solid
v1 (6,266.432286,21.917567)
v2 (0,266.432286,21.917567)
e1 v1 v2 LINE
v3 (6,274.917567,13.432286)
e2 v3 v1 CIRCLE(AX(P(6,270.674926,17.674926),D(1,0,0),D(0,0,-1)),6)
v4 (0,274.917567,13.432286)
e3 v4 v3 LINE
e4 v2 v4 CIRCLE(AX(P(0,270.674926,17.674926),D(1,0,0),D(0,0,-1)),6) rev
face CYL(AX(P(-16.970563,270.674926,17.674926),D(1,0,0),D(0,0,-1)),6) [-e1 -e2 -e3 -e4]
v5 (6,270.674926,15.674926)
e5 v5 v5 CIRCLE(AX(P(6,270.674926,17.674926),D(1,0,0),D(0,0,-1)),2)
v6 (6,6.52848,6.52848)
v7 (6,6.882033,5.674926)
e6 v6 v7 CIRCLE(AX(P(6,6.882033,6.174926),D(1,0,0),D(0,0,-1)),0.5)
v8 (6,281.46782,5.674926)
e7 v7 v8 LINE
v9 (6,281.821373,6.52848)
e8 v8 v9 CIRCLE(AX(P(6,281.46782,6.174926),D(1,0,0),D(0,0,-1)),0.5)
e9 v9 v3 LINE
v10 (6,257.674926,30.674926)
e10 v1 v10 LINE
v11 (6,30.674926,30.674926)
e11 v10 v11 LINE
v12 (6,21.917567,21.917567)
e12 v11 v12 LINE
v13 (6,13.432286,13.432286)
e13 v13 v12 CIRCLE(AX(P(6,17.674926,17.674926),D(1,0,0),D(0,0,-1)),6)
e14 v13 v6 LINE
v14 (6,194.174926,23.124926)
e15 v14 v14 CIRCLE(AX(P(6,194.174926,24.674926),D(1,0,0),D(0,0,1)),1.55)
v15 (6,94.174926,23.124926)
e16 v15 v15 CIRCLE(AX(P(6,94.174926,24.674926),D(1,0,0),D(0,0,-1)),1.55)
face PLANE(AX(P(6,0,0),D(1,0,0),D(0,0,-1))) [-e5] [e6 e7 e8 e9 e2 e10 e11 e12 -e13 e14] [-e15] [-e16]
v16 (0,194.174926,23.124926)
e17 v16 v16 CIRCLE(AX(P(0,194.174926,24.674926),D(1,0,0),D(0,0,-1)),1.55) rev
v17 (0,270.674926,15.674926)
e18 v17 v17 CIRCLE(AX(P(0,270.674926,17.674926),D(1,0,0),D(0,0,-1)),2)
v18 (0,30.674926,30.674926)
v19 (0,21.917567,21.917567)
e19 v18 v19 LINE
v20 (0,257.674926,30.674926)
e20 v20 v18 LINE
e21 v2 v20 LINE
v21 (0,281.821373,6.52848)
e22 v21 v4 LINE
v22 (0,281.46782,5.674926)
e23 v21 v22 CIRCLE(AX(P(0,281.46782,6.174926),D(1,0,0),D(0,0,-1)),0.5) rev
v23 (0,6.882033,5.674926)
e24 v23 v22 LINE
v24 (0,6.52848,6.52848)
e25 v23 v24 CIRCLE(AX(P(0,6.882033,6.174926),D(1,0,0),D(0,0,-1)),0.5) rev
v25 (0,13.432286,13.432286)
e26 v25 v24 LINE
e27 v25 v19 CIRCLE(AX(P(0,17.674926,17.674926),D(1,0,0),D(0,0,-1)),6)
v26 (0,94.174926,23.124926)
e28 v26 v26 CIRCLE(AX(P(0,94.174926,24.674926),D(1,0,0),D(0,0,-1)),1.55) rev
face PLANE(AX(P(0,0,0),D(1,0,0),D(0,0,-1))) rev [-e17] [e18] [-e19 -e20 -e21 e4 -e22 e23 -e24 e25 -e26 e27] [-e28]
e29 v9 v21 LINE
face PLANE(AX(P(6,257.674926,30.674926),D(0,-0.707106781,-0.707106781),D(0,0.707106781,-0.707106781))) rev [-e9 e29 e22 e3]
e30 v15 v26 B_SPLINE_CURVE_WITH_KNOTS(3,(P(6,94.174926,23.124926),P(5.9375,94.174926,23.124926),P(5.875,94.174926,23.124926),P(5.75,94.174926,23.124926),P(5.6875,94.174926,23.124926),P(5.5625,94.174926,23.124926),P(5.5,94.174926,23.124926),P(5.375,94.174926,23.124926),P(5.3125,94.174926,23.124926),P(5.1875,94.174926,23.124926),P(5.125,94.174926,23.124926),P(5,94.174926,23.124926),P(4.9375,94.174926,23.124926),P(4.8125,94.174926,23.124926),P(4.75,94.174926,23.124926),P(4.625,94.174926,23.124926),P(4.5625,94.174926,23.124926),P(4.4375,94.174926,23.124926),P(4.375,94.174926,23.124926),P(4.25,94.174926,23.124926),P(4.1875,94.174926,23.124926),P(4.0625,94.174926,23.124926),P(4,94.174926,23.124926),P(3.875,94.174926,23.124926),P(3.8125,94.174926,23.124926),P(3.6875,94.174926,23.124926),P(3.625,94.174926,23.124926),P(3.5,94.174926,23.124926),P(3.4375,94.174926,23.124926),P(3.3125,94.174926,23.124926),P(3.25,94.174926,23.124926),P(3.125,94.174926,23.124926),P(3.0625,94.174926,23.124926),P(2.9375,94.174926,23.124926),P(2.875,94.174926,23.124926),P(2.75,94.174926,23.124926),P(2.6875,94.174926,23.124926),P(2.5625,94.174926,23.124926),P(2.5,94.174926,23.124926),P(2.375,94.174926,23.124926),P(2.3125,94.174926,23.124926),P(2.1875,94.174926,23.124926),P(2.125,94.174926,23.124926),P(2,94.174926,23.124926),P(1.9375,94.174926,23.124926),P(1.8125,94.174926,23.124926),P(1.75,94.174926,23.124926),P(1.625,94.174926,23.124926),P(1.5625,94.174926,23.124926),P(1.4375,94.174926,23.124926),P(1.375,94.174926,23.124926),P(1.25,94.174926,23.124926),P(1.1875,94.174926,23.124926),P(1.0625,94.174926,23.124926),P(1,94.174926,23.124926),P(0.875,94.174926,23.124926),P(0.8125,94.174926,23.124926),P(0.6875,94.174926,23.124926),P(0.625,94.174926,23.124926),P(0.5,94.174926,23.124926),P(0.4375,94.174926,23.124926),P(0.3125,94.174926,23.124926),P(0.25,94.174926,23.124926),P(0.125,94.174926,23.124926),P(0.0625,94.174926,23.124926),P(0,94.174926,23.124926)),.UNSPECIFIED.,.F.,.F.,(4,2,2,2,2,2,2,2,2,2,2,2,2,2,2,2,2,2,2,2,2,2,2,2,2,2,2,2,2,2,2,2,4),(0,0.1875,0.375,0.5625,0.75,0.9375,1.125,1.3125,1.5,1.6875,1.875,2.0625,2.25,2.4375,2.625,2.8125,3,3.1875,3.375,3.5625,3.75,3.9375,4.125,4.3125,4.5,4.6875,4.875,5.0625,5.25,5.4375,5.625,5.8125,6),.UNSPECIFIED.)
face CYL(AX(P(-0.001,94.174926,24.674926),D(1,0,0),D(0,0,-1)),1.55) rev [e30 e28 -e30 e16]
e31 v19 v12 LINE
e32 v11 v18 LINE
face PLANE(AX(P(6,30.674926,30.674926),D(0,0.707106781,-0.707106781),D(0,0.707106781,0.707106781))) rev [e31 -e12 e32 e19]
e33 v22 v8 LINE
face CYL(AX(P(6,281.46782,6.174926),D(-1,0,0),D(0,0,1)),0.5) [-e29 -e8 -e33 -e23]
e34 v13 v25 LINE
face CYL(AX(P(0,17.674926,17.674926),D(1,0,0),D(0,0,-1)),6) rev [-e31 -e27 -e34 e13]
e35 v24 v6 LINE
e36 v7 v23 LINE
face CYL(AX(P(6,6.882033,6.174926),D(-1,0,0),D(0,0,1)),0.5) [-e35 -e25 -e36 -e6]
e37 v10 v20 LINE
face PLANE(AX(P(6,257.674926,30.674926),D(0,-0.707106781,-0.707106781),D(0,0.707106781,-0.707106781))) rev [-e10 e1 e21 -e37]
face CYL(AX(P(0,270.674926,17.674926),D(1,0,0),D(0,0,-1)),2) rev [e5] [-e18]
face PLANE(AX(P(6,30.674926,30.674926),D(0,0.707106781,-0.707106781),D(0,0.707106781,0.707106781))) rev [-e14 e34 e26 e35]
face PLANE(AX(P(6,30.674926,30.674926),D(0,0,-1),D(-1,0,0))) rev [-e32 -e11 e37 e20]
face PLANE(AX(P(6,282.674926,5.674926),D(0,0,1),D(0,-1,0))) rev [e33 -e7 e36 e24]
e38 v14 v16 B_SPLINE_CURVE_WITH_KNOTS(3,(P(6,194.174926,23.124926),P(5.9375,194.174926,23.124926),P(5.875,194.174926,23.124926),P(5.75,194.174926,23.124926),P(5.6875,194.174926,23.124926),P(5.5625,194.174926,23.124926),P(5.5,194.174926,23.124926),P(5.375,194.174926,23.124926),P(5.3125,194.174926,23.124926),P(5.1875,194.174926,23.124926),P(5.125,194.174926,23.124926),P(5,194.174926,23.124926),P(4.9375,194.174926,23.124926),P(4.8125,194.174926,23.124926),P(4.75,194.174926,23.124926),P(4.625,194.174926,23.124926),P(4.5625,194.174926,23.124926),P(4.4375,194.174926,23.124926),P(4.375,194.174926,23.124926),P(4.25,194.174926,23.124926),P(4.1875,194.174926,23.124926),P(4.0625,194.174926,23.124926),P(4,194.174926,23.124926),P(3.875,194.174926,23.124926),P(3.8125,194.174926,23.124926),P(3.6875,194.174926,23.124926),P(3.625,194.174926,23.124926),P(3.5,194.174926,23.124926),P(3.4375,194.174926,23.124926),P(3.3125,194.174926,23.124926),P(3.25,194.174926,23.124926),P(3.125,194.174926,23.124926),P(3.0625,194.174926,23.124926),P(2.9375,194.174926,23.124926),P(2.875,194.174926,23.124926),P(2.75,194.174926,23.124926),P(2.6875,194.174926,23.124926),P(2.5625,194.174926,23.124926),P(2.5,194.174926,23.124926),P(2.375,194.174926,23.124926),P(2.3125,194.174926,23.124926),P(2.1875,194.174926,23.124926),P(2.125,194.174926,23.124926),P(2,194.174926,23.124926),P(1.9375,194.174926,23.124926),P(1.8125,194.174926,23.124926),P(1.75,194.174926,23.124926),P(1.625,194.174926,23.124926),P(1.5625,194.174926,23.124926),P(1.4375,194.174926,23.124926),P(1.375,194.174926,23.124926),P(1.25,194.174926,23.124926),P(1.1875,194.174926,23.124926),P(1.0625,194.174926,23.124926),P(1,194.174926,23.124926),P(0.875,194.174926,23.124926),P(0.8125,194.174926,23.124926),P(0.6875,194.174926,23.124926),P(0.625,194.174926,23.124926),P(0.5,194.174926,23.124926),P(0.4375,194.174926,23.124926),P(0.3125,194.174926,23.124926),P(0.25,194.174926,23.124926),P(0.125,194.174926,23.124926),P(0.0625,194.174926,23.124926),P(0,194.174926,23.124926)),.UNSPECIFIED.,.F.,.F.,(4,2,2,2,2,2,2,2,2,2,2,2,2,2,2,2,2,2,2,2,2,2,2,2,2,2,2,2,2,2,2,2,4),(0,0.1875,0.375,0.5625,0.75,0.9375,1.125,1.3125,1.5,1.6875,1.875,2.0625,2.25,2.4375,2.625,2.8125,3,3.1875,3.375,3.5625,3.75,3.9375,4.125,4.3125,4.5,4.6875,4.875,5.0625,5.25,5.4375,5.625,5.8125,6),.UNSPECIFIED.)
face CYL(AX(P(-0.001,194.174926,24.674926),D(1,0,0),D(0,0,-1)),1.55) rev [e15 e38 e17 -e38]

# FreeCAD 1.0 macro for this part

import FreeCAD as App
import Part
import Sketcher

V = App.Vector


def edges_at(feature, points):
    """Names of the edges that pass closest to the given points."""
    edges = feature.Shape.Edges
    near = lambda p: min(range(len(edges)), key=lambda i: edges[i].distToShape(Part.Vertex(*p))[0])
    return sorted({f"Edge{near(p) + 1}" for p in points})

doc = App.newDocument("Part")
body = doc.addObject("PartDesign::Body", "Body")

# Sketch on YZ plane
sketch1 = body.newObject("Sketcher::SketchObject", "Sketch")
sketch1.AttachmentSupport = (doc.getObject("YZ_Plane"), [""])
sketch1.MapMode = "FlatFace"
sketch1.addGeometry(Part.LineSegment(V(258, 31, 0), V(31, 31, 0)), False)
sketch1.addGeometry(Part.LineSegment(V(31, 31, 0), V(6, 6, 0)), False)
sketch1.addGeometry(Part.LineSegment(V(6, 6, 0), V(283, 6, 0)), False)
sketch1.addGeometry(Part.LineSegment(V(283, 6, 0), V(258, 31, 0)), False)
sketch1.addConstraint(Sketcher.Constraint("Coincident", 0, 2, 1, 1))
sketch1.addConstraint(Sketcher.Constraint("Coincident", 1, 2, 2, 1))
sketch1.addConstraint(Sketcher.Constraint("Coincident", 2, 2, 3, 1))
sketch1.addConstraint(Sketcher.Constraint("Coincident", 3, 2, 0, 1))
sketch1.addConstraint(Sketcher.Constraint("Horizontal", 0))
sketch1.addConstraint(Sketcher.Constraint("Horizontal", 2))
sketch1.addConstraint(Sketcher.Constraint("Perpendicular", 1, 3))
sketch1.addConstraint(Sketcher.Constraint("Equal", 1, 3))
sketch1.addConstraint(Sketcher.Constraint("DistanceX", 0, 2, 0, 1, 227.0))
sketch1.addConstraint(Sketcher.Constraint("DistanceX", 2, 1, 2, 2, 277.0))
sketch1.addConstraint(Sketcher.Constraint("DistanceX", -1, 1, 0, 2, 30.674926))
sketch1.addConstraint(Sketcher.Constraint("DistanceY", -1, 1, 0, 2, 30.674926))
pad1 = body.newObject("PartDesign::Pad", "Pad")
pad1.Profile = sketch1
pad1.Length = 6
doc.recompute()

fillet = body.newObject("PartDesign::Fillet", "Fillet")
fillet.Base = (pad1, edges_at(pad1, [(3, 282.675, 5.675), (3, 5.675, 5.675)]))
fillet.Radius = 0.5

# Sketch on YZ plane
sketch2 = body.newObject("Sketcher::SketchObject", "Sketch001")
sketch2.AttachmentSupport = (doc.getObject("YZ_Plane"), [""])
sketch2.MapMode = "FlatFace"
sketch2.AttachmentOffset = App.Placement(V(0, 0, 6), App.Rotation())
sketch2.addGeometry(Part.Circle(V(271, 18, 0), V(0, 0, 1), 6), False)
sketch2.addConstraint(Sketcher.Constraint("Diameter", 0, 12.0))
sketch2.addConstraint(Sketcher.Constraint("DistanceX", -1, 1, 0, 3, 270.674926))
sketch2.addConstraint(Sketcher.Constraint("DistanceY", -1, 1, 0, 3, 17.674926))
pad2 = body.newObject("PartDesign::Pad", "Pad001")
pad2.Profile = sketch2
pad2.Length = 6
pad2.Reversed = True

# Sketch on YZ plane
sketch3 = body.newObject("Sketcher::SketchObject", "Sketch002")
sketch3.AttachmentSupport = (doc.getObject("YZ_Plane"), [""])
sketch3.MapMode = "FlatFace"
sketch3.AttachmentOffset = App.Placement(V(0, 0, 6), App.Rotation())
sketch3.addGeometry(Part.Circle(V(270.7, 17.7, 0), V(0, 0, 1), 2), False)
sketch3.addGeometry(Part.Circle(V(17.7, 17.7, 0), V(0, 0, 1), 6), False)
sketch3.addConstraint(Sketcher.Constraint("Horizontal", 0, 3, 1, 3))
sketch3.addConstraint(Sketcher.Constraint("Diameter", 0, 4.0))
sketch3.addConstraint(Sketcher.Constraint("Diameter", 1, 12.0))
sketch3.addConstraint(Sketcher.Constraint("DistanceX", 1, 3, 0, 3, 253.0))
sketch3.addConstraint(Sketcher.Constraint("DistanceX", -1, 1, 0, 3, 270.674926))
sketch3.addConstraint(Sketcher.Constraint("DistanceY", -1, 1, 0, 3, 17.674926))
pocket1 = body.newObject("PartDesign::Pocket", "Pocket")
pocket1.Profile = sketch3
pocket1.Type = "ThroughAll"

# Sketch on YZ plane
sketch4 = body.newObject("Sketcher::SketchObject", "Sketch003")
sketch4.AttachmentSupport = (doc.getObject("YZ_Plane"), [""])
sketch4.MapMode = "FlatFace"
sketch4.AttachmentOffset = App.Placement(V(0, 0, 6), App.Rotation())
sketch4.addGeometry(Part.Circle(V(94.2, 24.7, 0), V(0, 0, 1), 1.6), False)
sketch4.addConstraint(Sketcher.Constraint("Diameter", 0, 3.1))
sketch4.addConstraint(Sketcher.Constraint("DistanceX", -1, 1, 0, 3, 94.174926))
sketch4.addConstraint(Sketcher.Constraint("DistanceY", -1, 1, 0, 3, 24.674926))
pocket2 = body.newObject("PartDesign::Pocket", "Pocket001")
pocket2.Profile = sketch4
pocket2.Type = "UpToFirst"

# Sketch on YZ plane
sketch5 = body.newObject("Sketcher::SketchObject", "Sketch004")
sketch5.AttachmentSupport = (doc.getObject("YZ_Plane"), [""])
sketch5.MapMode = "FlatFace"
sketch5.AttachmentOffset = App.Placement(V(0, 0, 6), App.Rotation())
sketch5.addGeometry(Part.Circle(V(194.2, 24.7, 0), V(0, 0, 1), 1.6), False)
sketch5.addConstraint(Sketcher.Constraint("Diameter", 0, 3.1))
sketch5.addConstraint(Sketcher.Constraint("DistanceX", -1, 1, 0, 3, 194.174926))
sketch5.addConstraint(Sketcher.Constraint("DistanceY", -1, 1, 0, 3, 24.674926))
pocket3 = body.newObject("PartDesign::Pocket", "Pocket002")
pocket3.Profile = sketch5
pocket3.Type = "UpToFirst"

doc.recompute()
